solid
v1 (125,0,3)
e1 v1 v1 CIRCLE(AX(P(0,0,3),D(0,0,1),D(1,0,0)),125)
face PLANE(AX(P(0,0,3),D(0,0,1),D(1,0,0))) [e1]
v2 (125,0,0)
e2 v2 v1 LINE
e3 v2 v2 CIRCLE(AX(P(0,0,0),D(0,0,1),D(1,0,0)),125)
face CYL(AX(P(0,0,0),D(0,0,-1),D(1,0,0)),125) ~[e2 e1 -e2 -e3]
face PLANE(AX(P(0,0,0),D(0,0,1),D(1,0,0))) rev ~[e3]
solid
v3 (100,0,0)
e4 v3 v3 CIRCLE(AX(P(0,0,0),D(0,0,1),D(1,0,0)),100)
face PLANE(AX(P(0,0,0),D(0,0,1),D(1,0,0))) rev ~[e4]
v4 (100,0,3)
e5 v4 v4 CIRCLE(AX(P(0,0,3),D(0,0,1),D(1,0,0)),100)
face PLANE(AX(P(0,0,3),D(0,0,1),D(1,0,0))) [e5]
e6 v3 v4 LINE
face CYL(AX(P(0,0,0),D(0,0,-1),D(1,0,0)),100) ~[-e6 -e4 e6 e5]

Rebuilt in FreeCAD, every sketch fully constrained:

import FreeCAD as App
import Part
import Sketcher
from FreeCAD import Vector

doc = App.newDocument("Part")
params = doc.addObject("Spreadsheet::Sheet", "Params")
for row, (alias, value) in enumerate([
    ("sketch1_diameter", "250 mm"),
    ("pad1_length", "3 mm"),
    ("sketch2_diameter", "200 mm"),
    ("pad2_length", "3 mm"),
], start=1):
    params.set(f"A{row}", alias)
    params.set(f"B{row}", "=" + value)
    params.setAlias(f"B{row}", alias)

body = doc.addObject("PartDesign::Body", "Body")

sketch1 = body.newObject("Sketcher::SketchObject", "Sketch")
sketch1.AttachmentSupport = (doc.getObject("XY_Plane"), [""])
sketch1.MapMode = "FlatFace"
sketch1.addGeometry(Part.Circle(Vector(0, 0, 0), Vector(0, 0, 1), 125), False)
sketch1.addConstraint(Sketcher.Constraint("Coincident", 0, 3, -1, 1))
sketch1.addConstraint(Sketcher.Constraint("Diameter", 0, 250.0))
sketch1.setExpression("Constraints[1]", "Params.sketch1_diameter")
pad1 = body.newObject("PartDesign::Pad", "Pad")
pad1.Profile = sketch1
pad1.setExpression("Length", "Params.pad1_length")
body2 = doc.addObject("PartDesign::Body", "Body001")

sketch2 = body2.newObject("Sketcher::SketchObject", "Sketch001")
sketch2.AttachmentSupport = (doc.getObject("XY_Plane001"), [""])
sketch2.MapMode = "FlatFace"
sketch2.addGeometry(Part.Circle(Vector(0, 0, 0), Vector(0, 0, 1), 100), False)
sketch2.addConstraint(Sketcher.Constraint("Coincident", 0, 3, -1, 1))
sketch2.addConstraint(Sketcher.Constraint("Diameter", 0, 200.0))
sketch2.setExpression("Constraints[1]", "Params.sketch2_diameter")
pad2 = body2.newObject("PartDesign::Pad", "Pad001")
pad2.Profile = sketch2
pad2.setExpression("Length", "Params.pad2_length")

doc.recompute()
